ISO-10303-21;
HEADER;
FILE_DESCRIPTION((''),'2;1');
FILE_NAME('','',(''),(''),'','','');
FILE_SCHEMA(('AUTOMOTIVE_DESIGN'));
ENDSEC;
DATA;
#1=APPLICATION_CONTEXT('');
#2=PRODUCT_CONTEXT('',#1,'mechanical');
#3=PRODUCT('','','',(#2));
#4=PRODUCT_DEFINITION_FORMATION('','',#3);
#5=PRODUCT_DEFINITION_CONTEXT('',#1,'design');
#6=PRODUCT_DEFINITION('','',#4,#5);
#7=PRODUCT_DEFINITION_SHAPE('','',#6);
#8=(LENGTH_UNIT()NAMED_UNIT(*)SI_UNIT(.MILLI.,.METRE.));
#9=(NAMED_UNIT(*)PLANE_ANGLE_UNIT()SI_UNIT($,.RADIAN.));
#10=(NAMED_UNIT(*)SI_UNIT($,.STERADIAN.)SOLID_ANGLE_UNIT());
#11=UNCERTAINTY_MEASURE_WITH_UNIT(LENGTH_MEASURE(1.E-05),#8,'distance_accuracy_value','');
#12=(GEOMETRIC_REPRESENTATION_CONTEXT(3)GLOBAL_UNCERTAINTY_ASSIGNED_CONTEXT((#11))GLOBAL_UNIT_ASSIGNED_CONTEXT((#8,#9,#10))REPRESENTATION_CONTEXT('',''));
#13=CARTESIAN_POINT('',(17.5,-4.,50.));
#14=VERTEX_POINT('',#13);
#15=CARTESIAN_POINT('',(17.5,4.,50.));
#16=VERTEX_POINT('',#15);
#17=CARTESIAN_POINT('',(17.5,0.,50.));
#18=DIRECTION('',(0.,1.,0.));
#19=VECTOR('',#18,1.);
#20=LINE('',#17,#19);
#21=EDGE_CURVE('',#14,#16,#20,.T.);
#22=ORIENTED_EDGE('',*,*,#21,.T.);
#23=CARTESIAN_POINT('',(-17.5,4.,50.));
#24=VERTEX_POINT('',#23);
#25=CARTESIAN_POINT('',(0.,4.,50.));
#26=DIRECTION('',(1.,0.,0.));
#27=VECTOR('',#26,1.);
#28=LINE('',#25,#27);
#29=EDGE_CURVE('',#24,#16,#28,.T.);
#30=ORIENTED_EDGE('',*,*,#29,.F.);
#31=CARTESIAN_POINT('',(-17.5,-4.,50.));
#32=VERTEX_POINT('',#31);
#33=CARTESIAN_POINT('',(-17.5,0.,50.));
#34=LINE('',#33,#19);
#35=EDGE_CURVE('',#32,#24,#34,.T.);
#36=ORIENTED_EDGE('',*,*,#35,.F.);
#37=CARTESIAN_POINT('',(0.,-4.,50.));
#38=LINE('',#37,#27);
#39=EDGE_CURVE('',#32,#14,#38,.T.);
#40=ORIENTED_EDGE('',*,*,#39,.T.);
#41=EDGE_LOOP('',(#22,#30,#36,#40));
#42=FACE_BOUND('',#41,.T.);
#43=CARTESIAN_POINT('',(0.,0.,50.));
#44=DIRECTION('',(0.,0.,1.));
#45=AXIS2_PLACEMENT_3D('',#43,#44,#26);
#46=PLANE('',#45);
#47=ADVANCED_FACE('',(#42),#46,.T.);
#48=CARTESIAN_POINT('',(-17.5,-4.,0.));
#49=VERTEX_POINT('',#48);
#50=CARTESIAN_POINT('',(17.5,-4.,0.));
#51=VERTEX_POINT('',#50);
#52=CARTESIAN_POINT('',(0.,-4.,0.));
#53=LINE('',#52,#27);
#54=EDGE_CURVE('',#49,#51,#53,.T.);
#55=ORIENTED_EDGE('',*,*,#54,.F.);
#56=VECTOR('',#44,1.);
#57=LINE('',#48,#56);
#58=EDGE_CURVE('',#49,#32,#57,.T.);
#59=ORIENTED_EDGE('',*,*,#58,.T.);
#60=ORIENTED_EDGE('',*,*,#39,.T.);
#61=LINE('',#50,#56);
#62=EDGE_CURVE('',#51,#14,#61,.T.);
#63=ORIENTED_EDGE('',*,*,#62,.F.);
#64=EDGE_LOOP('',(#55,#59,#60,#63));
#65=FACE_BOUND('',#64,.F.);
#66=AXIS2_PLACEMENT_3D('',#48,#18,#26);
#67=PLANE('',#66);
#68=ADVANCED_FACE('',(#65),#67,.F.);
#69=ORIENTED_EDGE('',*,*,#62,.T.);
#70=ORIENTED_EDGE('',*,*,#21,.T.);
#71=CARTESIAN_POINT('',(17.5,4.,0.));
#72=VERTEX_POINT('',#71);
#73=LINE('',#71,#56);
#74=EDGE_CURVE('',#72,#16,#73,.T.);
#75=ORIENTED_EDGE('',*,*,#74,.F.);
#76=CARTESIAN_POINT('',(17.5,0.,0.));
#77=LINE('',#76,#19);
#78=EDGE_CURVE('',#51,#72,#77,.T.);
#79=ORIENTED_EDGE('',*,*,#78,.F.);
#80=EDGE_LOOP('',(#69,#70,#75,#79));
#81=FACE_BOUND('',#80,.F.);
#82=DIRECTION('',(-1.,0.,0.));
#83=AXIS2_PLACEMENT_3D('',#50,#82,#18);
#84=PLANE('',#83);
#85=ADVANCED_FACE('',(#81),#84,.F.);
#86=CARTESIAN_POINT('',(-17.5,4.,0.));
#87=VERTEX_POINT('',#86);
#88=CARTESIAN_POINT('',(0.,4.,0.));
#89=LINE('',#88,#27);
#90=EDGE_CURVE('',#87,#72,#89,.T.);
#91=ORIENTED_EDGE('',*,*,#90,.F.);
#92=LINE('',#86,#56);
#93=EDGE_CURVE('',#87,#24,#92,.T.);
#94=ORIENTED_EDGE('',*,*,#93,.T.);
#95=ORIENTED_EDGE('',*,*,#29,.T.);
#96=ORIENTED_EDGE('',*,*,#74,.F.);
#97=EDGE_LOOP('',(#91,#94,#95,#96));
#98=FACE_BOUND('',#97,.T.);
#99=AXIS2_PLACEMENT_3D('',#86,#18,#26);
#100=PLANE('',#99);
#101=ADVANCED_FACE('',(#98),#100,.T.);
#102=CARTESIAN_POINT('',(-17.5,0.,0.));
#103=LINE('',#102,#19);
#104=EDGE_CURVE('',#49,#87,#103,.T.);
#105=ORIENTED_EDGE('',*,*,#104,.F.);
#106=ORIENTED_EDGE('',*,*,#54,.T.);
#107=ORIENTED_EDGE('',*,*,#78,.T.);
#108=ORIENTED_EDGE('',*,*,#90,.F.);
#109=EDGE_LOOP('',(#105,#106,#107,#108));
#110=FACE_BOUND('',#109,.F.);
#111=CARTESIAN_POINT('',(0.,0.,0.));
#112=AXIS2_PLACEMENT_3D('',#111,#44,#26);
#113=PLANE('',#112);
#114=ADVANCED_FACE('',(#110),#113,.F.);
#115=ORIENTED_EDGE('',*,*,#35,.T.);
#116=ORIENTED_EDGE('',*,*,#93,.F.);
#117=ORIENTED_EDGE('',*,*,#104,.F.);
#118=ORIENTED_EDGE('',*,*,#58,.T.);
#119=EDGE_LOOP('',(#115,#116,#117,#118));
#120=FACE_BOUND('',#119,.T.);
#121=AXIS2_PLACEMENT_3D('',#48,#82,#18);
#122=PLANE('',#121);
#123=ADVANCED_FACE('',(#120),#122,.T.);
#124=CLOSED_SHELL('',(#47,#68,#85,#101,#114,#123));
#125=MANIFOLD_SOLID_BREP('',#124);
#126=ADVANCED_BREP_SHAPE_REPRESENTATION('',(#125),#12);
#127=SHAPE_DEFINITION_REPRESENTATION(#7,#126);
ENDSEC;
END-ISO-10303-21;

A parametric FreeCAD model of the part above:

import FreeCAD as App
import Part
import Sketcher

V = App.Vector

doc = App.newDocument("Part")
body = doc.addObject("PartDesign::Body", "Body")

# Sketch on XY plane
sketch1 = doc.addObject("Sketcher::SketchObject", "Sketch")
body.addObject(sketch1)
sketch1.AttachmentSupport = (doc.XY_Plane, [""])
sketch1.MapMode = "FlatFace"
sketch1.addGeometry([
    Part.LineSegment(V(-18, 4, 0), V(-18, -4, 0)),
    Part.LineSegment(V(-18, -4, 0), V(18, -4, 0)),
    Part.LineSegment(V(18, -4, 0), V(18, 4, 0)),
    Part.LineSegment(V(18, 4, 0), V(-18, 4, 0)),
], False)
sketch1.addConstraint([
    Sketcher.Constraint("Coincident", 0, 2, 1, 1),
    Sketcher.Constraint("Coincident", 1, 2, 2, 1),
    Sketcher.Constraint("Coincident", 2, 2, 3, 1),
    Sketcher.Constraint("Coincident", 3, 2, 0, 1),
    Sketcher.Constraint("Vertical", 0),
    Sketcher.Constraint("Horizontal", 1),
    Sketcher.Constraint("Vertical", 2),
    Sketcher.Constraint("Horizontal", 3),
    Sketcher.Constraint("Symmetric", 0, 2, 2, 2, -1, 1),
    Sketcher.Constraint("DistanceX", 1, 1, 1, 2, 35.0),
    Sketcher.Constraint("DistanceY", 0, 2, 0, 1, 8.0),
])
pad1 = doc.addObject("PartDesign::Pad", "Pad")
body.addObject(pad1)
pad1.Profile = sketch1
pad1.Length = 50

doc.recompute()
